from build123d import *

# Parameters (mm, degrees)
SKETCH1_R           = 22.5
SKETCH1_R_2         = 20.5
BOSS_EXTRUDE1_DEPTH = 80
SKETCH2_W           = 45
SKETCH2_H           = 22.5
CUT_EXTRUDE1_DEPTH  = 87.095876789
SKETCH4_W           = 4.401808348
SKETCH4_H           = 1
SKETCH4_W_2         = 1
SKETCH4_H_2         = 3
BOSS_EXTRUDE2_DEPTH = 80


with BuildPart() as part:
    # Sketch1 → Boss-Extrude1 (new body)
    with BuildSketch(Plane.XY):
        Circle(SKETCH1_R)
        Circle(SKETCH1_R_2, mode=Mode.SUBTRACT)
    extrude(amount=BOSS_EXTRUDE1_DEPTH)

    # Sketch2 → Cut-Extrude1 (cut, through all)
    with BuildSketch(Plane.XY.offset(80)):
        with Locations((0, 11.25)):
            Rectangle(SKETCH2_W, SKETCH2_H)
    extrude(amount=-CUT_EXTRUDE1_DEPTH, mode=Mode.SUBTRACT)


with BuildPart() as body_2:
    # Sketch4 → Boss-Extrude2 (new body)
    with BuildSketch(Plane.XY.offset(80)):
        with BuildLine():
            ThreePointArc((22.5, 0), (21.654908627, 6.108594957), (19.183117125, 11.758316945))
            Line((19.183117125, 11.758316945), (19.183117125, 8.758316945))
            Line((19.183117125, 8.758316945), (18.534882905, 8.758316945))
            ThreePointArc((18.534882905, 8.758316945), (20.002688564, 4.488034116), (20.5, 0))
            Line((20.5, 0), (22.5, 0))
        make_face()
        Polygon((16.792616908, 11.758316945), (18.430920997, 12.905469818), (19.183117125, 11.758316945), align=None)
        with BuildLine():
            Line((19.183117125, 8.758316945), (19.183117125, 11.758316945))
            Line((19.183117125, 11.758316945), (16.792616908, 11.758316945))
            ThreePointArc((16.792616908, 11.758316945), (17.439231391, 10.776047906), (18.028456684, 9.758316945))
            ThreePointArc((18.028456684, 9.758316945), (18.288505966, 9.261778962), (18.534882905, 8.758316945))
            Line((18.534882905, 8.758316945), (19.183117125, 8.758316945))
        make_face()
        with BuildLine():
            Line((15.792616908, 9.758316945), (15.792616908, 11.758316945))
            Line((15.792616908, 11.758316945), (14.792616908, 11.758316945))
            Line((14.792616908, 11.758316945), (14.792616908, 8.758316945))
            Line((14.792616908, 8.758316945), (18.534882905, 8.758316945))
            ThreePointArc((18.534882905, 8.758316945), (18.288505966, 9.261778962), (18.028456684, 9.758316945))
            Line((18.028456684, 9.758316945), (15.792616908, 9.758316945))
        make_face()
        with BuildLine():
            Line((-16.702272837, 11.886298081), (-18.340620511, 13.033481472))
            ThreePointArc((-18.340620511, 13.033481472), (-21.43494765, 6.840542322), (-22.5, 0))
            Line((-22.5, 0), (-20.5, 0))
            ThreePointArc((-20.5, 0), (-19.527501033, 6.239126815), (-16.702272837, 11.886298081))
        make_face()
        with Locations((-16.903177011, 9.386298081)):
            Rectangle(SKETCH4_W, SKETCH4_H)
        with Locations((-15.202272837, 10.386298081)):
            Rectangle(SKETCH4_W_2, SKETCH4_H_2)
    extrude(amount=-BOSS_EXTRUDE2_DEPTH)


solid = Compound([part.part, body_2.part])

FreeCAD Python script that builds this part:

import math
import FreeCAD as App
import Part
import Sketcher
Q = App.Units.Quantity


def add_polygon(sketch, points):
    """Adds a closed chain of lines whose ends are joined by coincident constraints."""
    first, n = sketch.GeometryCount, len(points)
    for a, b in zip(points, points[1:] + points[:1]):
        sketch.addGeometry(Part.LineSegment(App.Vector(*a, 0), App.Vector(*b, 0)), False)
    for i in range(n):
        sketch.addConstraint(Sketcher.Constraint("Coincident", first + i, 2, first + (i + 1) % n, 1))

doc = App.newDocument("Part")
params = doc.addObject("Spreadsheet::Sheet", "Params")
for row, (alias, value) in enumerate([
    ("sketch1_diameter", "45 mm"),
    ("sketch1_diameter2", "41 mm"),
    ("pad1_length", "80 mm"),
    ("sketch2_width", "45 mm"),
    ("sketch2_height", "22.5 mm"),
    ("sketch3_radius", "22.5 mm"),
    ("sketch3_radius2", "20.5 mm"),
    ("sketch3_width", "1 mm"),
    ("sketch3_height", "3 mm"),
    ("sketch3_length", "2 mm"),
    ("pad2_length", "80 mm"),
], start=1):
    params.set(f"A{row}", alias)
    params.set(f"B{row}", "=" + value)
    params.setAlias(f"B{row}", alias)

body = doc.addObject("PartDesign::Body", "Body")

# Sketch on XY plane
sketch1 = body.newObject("Sketcher::SketchObject", "Sketch")
sketch1.AttachmentSupport = (doc.getObject("XY_Plane"), [""])
sketch1.MapMode = "FlatFace"
sketch1.addGeometry([
    Part.Circle(App.Vector(0, 0, 0), App.Vector(0, 0, 1), 22.5),
    Part.Circle(App.Vector(0, 0, 0), App.Vector(0, 0, 1), 20.5),
], False)
sketch1.addConstraint([
    Sketcher.Constraint("Coincident", 0, 3, -1, 1),
    Sketcher.Constraint("Coincident", 1, 3, -1, 1),
    Sketcher.Constraint("Diameter", 0, Q("45 mm")),
    Sketcher.Constraint("Diameter", 1, Q("41 mm")),
])
sketch1.setExpression("Constraints[2]", "Params.sketch1_diameter")
sketch1.setExpression("Constraints[3]", "Params.sketch1_diameter2")
pad1 = body.newObject("PartDesign::Pad", "Pad")
pad1.Profile = sketch1
pad1.setExpression("Length", "Params.pad1_length")

# Sketch on XY plane
sketch2 = body.newObject("Sketcher::SketchObject", "Sketch001")
sketch2.AttachmentSupport = (doc.getObject("XY_Plane"), [""])
sketch2.MapMode = "FlatFace"
sketch2.AttachmentOffset = App.Placement(App.Vector(0, 0, 80), App.Rotation())
add_polygon(sketch2, [(-22.5, 22.5), (-22.5, 0), (22.5, 0), (22.5, 22.5)])  # lines 0-3
sketch2.addConstraint([
    Sketcher.Constraint("Vertical", 0),
    Sketcher.Constraint("Horizontal", 1),
    Sketcher.Constraint("Vertical", 2),
    Sketcher.Constraint("Horizontal", 3),
    Sketcher.Constraint("Symmetric", 0, 2, 1, 2, -1, 1),
    Sketcher.Constraint("DistanceX", 1, 1, 1, 2, Q("45 mm")),
    Sketcher.Constraint("DistanceY", 0, 2, 0, 1, Q("22.5 mm")),
])
sketch2.setExpression("Constraints[9]", "Params.sketch2_width")
sketch2.setExpression("Constraints[10]", "Params.sketch2_height")
pocket1 = body.newObject("PartDesign::Pocket", "Pocket")
pocket1.Profile = sketch2
pocket1.Type = "ThroughAll"
body2 = doc.addObject("PartDesign::Body", "Body001")
body2.AllowCompound = True

# Sketch on XY plane
sketch3 = body2.newObject("Sketcher::SketchObject", "Sketch002")
sketch3.AttachmentSupport = (doc.getObject("XY_Plane001"), [""])
sketch3.MapMode = "FlatFace"
sketch3.AttachmentOffset = App.Placement(App.Vector(0, 0, 80), App.Rotation())
sketch3.addGeometry([
    Part.ArcOfCircle(Part.Circle(App.Vector(0, 0, 0), App.Vector(0, 0, 1), 22.5), math.radians(0), math.radians(31.50627)),  # 0
    Part.LineSegment(App.Vector(19.183117, 11.758317, 0), App.Vector(18.430921, 12.90547, 0)),  # 1
    Part.LineSegment(App.Vector(18.430921, 12.90547, 0), App.Vector(16.792617, 11.758317, 0)),  # 2
    Part.ArcOfCircle(Part.Circle(App.Vector(0, 0, 0), App.Vector(0, 0, 1), 20.5), math.radians(28.425487), math.radians(35)),  # 3
    Part.LineSegment(App.Vector(18.028457, 9.758317, 0), App.Vector(15.792617, 9.758317, 0)),  # 4
    Part.LineSegment(App.Vector(15.792617, 9.758317, 0), App.Vector(15.792617, 11.758317, 0)),  # 5
    Part.LineSegment(App.Vector(15.792617, 11.758317, 0), App.Vector(14.792617, 11.758317, 0)),  # 6
    Part.LineSegment(App.Vector(14.792617, 11.758317, 0), App.Vector(14.792617, 8.758317, 0)),  # 7
    Part.LineSegment(App.Vector(14.792617, 8.758317, 0), App.Vector(18.534883, 8.758317, 0)),  # 8
    Part.ArcOfCircle(Part.Circle(App.Vector(0, 0, 0), App.Vector(0, 0, 1), 20.5), math.radians(0), math.radians(25.292212)),  # 9
    Part.LineSegment(App.Vector(20.5, 0, 0), App.Vector(22.5, 0, 0)),  # 10
    Part.LineSegment(App.Vector(-15.702273, 9.886298, 0), App.Vector(-17.958594, 9.886298, 0)),  # 11
    Part.ArcOfCircle(Part.Circle(App.Vector(0, 0, 0), App.Vector(0, 0, 1), 20.5), math.radians(144.562157), math.radians(151.166991)),  # 12
    Part.LineSegment(App.Vector(-16.702273, 11.886298, 0), App.Vector(-18.340621, 13.033481, 0)),  # 13
    Part.ArcOfCircle(Part.Circle(App.Vector(0, 0, 0), App.Vector(0, 0, 1), 22.5), math.radians(144.601077), math.radians(180)),  # 14
    Part.LineSegment(App.Vector(-22.5, 0, 0), App.Vector(-20.5, 0, 0)),  # 15
    Part.ArcOfCircle(Part.Circle(App.Vector(0, 0, 0), App.Vector(0, 0, 1), 20.5), math.radians(154.311517), math.radians(180)),  # 16
    Part.LineSegment(App.Vector(-18.473865, 8.886298, 0), App.Vector(-14.702273, 8.886298, 0)),  # 17
    Part.LineSegment(App.Vector(-14.702273, 8.886298, 0), App.Vector(-14.702273, 11.886298, 0)),  # 18
    Part.LineSegment(App.Vector(-14.702273, 11.886298, 0), App.Vector(-15.702273, 11.886298, 0)),  # 19
    Part.LineSegment(App.Vector(-15.702273, 11.886298, 0), App.Vector(-15.702273, 9.886298, 0)),  # 20
], False)
sketch3.addConstraint([
    Sketcher.Constraint("Coincident", 0, 2, 1, 1),
    Sketcher.Constraint("Coincident", 1, 2, 2, 1),
    Sketcher.Constraint("Coincident", 2, 2, 3, 2),
    Sketcher.Constraint("Coincident", 3, 1, 4, 1),
    Sketcher.Constraint("Coincident", 4, 2, 5, 1),
    Sketcher.Constraint("Coincident", 5, 2, 6, 1),
    Sketcher.Constraint("Coincident", 6, 2, 7, 1),
    Sketcher.Constraint("Coincident", 7, 2, 8, 1),
    Sketcher.Constraint("Coincident", 8, 2, 9, 2),
    Sketcher.Constraint("Coincident", 9, 1, 10, 1),
    Sketcher.Constraint("Coincident", 10, 2, 0, 1),
    Sketcher.Constraint("Coincident", 11, 2, 12, 2),
    Sketcher.Constraint("Coincident", 12, 1, 13, 1),
    Sketcher.Constraint("Coincident", 13, 2, 14, 1),
    Sketcher.Constraint("Coincident", 14, 2, 15, 1),
    Sketcher.Constraint("Coincident", 15, 2, 16, 2),
    Sketcher.Constraint("Coincident", 16, 1, 17, 1),
    Sketcher.Constraint("Coincident", 17, 2, 18, 1),
    Sketcher.Constraint("Coincident", 18, 2, 19, 1),
    Sketcher.Constraint("Coincident", 19, 2, 20, 1),
    Sketcher.Constraint("Coincident", 20, 2, 11, 1),
    Sketcher.Constraint("Horizontal", 4),
    Sketcher.Constraint("Vertical", 5),
    Sketcher.Constraint("Horizontal", 6),
    Sketcher.Constraint("Vertical", 7),
    Sketcher.Constraint("Horizontal", 8),
    Sketcher.Constraint("Horizontal", 10),
    Sketcher.Constraint("Horizontal", 11),
    Sketcher.Constraint("Horizontal", 15),
    Sketcher.Constraint("Horizontal", 17),
    Sketcher.Constraint("Vertical", 18),
    Sketcher.Constraint("Horizontal", 19),
    Sketcher.Constraint("Vertical", 20),
    Sketcher.Constraint("Coincident", 0, 3, -1, 1),
    Sketcher.Constraint("Coincident", 3, 3, -1, 1),
    Sketcher.Constraint("Coincident", 9, 3, -1, 1),
    Sketcher.Constraint("Coincident", 12, 3, -1, 1),
    Sketcher.Constraint("Coincident", 14, 3, -1, 1),
    Sketcher.Constraint("Coincident", 16, 3, -1, 1),
    Sketcher.Constraint("Equal", 3, 9),
    Sketcher.Constraint("Equal", 9, 12),
    Sketcher.Constraint("Equal", 0, 14),
    Sketcher.Constraint("Equal", 12, 16),
    Sketcher.Constraint("PointOnObject", 9, 1, -1),
    Sketcher.Constraint("PointOnObject", 14, 2, -1),
    Sketcher.Constraint("Horizontal", 0, 2, 2, 2),
    Sketcher.Constraint("Horizontal", 2, 2, 5, 2),
    Sketcher.Constraint("Horizontal", 12, 1, 18, 2),
    Sketcher.Constraint("Equal", 6, 19),
    Sketcher.Constraint("Equal", 15, 5),
    Sketcher.Constraint("Equal", 7, 18),
    Sketcher.Constraint("Equal", 5, 20),
    Sketcher.Constraint("Radius", 0, Q("22.5 mm")),
    Sketcher.Constraint("Radius", 3, Q("20.5 mm")),
    Sketcher.Constraint("DistanceX", 6, 2, 6, 1, Q("1 mm")),
    Sketcher.Constraint("DistanceY", 7, 2, 7, 1, Q("3 mm")),
    Sketcher.Constraint("Angle", 2, Q("-145 deg")),
    Sketcher.Constraint("Angle", 13, Q("145 deg")),
    Sketcher.Constraint("Distance", 2, Q("2 mm")),
    Sketcher.Constraint("DistanceX", 4, 2, 2, 2, Q("1 mm")),
    Sketcher.Constraint("DistanceX", 12, 1, 17, 2, Q("2 mm")),
    Sketcher.Constraint("DistanceX", 4, 2, 4, 1, Q("2.23584 mm")),
    Sketcher.Constraint("DistanceX", 11, 2, 11, 1, Q("2.256321 mm")),
])
sketch3.setExpression("Constraints[52]", "Params.sketch3_radius")
sketch3.setExpression("Constraints[53]", "Params.sketch3_radius2")
sketch3.setExpression("Constraints[54]", "Params.sketch3_width")
sketch3.setExpression("Constraints[55]", "Params.sketch3_height")
sketch3.setExpression("Constraints[58]", "Params.sketch3_length")
pad2 = body2.newObject("PartDesign::Pad", "Pad001")
pad2.Profile = sketch3
pad2.setExpression("Length", "Params.pad2_length")
pad2.Reversed = True

doc.recompute()
